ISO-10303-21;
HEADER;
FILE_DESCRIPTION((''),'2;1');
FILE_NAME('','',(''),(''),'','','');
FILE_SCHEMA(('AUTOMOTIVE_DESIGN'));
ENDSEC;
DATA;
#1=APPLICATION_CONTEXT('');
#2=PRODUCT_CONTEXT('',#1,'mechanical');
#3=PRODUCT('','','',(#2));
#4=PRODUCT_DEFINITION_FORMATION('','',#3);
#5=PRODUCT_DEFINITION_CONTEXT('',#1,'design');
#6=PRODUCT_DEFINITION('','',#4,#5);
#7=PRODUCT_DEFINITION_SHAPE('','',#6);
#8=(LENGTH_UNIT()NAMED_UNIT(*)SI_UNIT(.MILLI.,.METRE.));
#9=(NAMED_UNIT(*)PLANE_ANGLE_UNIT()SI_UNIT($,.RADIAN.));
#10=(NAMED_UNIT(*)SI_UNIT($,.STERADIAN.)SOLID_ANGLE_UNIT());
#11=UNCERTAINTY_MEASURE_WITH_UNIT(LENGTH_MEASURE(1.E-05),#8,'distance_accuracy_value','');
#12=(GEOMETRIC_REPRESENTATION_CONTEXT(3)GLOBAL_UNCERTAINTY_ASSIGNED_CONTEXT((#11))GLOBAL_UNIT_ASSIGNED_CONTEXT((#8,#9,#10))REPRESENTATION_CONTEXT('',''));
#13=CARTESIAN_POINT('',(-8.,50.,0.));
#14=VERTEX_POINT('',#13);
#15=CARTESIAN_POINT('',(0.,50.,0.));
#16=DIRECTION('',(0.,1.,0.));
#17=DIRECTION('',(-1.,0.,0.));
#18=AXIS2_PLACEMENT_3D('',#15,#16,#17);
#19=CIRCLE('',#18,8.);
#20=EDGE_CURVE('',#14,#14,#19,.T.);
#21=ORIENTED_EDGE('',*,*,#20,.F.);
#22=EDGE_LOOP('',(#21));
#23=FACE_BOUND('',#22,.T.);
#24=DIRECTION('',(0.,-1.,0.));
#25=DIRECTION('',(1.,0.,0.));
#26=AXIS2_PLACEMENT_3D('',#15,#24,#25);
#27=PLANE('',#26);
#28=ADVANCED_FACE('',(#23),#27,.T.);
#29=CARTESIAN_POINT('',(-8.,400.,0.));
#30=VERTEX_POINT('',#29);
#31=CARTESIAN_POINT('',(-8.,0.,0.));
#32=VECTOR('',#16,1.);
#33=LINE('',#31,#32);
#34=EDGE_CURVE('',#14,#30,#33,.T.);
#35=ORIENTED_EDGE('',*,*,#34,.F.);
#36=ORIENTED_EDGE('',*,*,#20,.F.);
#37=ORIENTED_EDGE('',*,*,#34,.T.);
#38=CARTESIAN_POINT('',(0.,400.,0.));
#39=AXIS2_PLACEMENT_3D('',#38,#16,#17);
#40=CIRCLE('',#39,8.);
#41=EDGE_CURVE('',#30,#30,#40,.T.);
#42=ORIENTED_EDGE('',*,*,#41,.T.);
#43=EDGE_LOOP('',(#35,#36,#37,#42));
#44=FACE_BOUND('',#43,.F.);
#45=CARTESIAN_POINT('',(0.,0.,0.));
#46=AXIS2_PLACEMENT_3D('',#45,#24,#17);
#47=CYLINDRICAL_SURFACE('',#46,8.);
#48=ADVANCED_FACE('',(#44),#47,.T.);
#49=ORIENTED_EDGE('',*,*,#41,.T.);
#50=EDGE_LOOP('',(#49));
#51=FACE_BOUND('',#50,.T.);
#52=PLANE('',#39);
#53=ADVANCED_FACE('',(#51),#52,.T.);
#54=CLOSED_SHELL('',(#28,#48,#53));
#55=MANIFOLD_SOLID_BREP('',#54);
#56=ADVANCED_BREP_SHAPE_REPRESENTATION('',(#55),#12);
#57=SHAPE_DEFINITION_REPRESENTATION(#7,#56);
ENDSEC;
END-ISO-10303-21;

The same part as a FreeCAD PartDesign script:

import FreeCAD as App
import Part
import Sketcher
from FreeCAD import Vector
Q = App.Units.Quantity

doc = App.newDocument("Part")
body = doc.addObject("PartDesign::Body", "Body")

# Sketch on XZ plane
sketch1 = doc.addObject("Sketcher::SketchObject", "Sketch")
body.addObject(sketch1)
sketch1.AttachmentSupport = (doc.XZ_Plane, [""])
sketch1.MapMode = "FlatFace"
sketch1.addGeometry(Part.Circle(Vector(0, 0, 0), Vector(0, 0, 1), 8), False)
sketch1.addConstraint([
    Sketcher.Constraint("Coincident", 0, 3, -1, 1),
    Sketcher.Constraint("Diameter", 0, Q("16 mm")),
])
pad1 = doc.addObject("PartDesign::Pad", "Pad")
body.addObject(pad1)
pad1.Profile = sketch1
pad1.Length = 400
pad1.Reversed = True

# Sketch on XZ plane
sketch2 = doc.addObject("Sketcher::SketchObject", "Sketch001")
body.addObject(sketch2)
sketch2.AttachmentSupport = (doc.XZ_Plane, [""])
sketch2.MapMode = "FlatFace"
sketch2.addGeometry(Part.Circle(Vector(0, 0, 0), Vector(0, 0, 1), 8), False)
sketch2.addConstraint([
    Sketcher.Constraint("Coincident", 0, 3, -1, 1),
    Sketcher.Constraint("Diameter", 0, Q("16 mm")),
])
pocket1 = doc.addObject("PartDesign::Pocket", "Pocket")
body.addObject(pocket1)
pocket1.Profile = sketch2
pocket1.Length = 50

doc.recompute()
